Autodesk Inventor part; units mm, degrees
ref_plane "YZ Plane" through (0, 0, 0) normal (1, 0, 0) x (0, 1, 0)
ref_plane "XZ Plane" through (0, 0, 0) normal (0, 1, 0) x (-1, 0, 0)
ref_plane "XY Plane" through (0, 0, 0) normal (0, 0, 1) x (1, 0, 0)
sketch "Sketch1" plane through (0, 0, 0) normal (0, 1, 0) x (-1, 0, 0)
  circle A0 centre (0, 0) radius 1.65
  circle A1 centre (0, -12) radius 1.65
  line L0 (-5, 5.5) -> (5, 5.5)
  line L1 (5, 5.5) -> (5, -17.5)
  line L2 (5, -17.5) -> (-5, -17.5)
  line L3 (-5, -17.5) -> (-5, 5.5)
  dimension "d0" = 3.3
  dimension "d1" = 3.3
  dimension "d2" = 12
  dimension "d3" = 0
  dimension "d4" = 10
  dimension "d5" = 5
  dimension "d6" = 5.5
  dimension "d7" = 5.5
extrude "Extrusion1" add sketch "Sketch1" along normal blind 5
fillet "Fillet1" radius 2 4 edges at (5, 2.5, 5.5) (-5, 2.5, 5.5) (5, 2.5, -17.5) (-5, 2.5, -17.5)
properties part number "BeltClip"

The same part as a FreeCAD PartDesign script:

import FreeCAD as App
import Part
import Sketcher

V = App.Vector


def edges_at(feature, points):
    """Names of the edges that pass closest to the given points."""
    edges = feature.Shape.Edges
    near = lambda p: min(range(len(edges)), key=lambda i: edges[i].distToShape(Part.Vertex(*p))[0])
    return sorted({f"Edge{near(p) + 1}" for p in points})


def add_polygon(sketch, points):
    """Adds a closed chain of lines whose ends are joined by coincident constraints."""
    first, n = sketch.GeometryCount, len(points)
    for a, b in zip(points, points[1:] + points[:1]):
        sketch.addGeometry(Part.LineSegment(App.Vector(*a, 0), App.Vector(*b, 0)), False)
    for i in range(n):
        sketch.addConstraint(Sketcher.Constraint("Coincident", first + i, 2, first + (i + 1) % n, 1))

doc = App.newDocument("Part")
body = doc.addObject("PartDesign::Body", "Body")

# Sketch on XZ plane
sketch1 = doc.addObject("Sketcher::SketchObject", "Sketch")
body.addObject(sketch1)
sketch1.AttachmentSupport = (doc.XZ_Plane, [""])
sketch1.MapMode = "FlatFace"
add_polygon(sketch1, [(-5, 5.5), (5, 5.5), (5, -17.5), (-5, -17.5)])  # lines 0-3
sketch1.addGeometry(Part.Circle(V(0, -12, 0), V(0, 0, 1), 1.6), False)  # 4
sketch1.addGeometry(Part.Circle(V(0, 0, 0), V(0, 0, 1), 1.6), False)  # 5
sketch1.addConstraint([
    Sketcher.Constraint("Horizontal", 0),
    Sketcher.Constraint("Vertical", 1),
    Sketcher.Constraint("Horizontal", 2),
    Sketcher.Constraint("Vertical", 3),
    Sketcher.Constraint("Coincident", 5, 3, -1, 1),
    Sketcher.Constraint("Equal", 4, 5),
    Sketcher.Constraint("PointOnObject", 4, 3, -2),
    Sketcher.Constraint("Diameter", 4, 3.3),
    Sketcher.Constraint("DistanceX", 0, 1, 0, 2, 10.0),
    Sketcher.Constraint("DistanceY", 4, 3, -1, 1, 12.0),
    Sketcher.Constraint("DistanceX", -1, 1, 0, 2, 5.0),
    Sketcher.Constraint("DistanceY", -1, 1, 0, 2, 5.5),
    Sketcher.Constraint("DistanceY", 1, 2, 4, 3, 5.5),
])
pad1 = doc.addObject("PartDesign::Pad", "Pad")
body.addObject(pad1)
pad1.Profile = sketch1
pad1.Length = 5
pad1.Reversed = True
doc.recompute()

fillet = doc.addObject("PartDesign::Fillet", "Fillet")
body.addObject(fillet)
fillet.Base = (pad1, edges_at(pad1, [
    (5, 2.5, 5.5),
    (-5, 2.5, 5.5),
    (5, 2.5, -17.5),
    (-5, 2.5, -17.5),
]))
fillet.Radius = 2

doc.recompute()
